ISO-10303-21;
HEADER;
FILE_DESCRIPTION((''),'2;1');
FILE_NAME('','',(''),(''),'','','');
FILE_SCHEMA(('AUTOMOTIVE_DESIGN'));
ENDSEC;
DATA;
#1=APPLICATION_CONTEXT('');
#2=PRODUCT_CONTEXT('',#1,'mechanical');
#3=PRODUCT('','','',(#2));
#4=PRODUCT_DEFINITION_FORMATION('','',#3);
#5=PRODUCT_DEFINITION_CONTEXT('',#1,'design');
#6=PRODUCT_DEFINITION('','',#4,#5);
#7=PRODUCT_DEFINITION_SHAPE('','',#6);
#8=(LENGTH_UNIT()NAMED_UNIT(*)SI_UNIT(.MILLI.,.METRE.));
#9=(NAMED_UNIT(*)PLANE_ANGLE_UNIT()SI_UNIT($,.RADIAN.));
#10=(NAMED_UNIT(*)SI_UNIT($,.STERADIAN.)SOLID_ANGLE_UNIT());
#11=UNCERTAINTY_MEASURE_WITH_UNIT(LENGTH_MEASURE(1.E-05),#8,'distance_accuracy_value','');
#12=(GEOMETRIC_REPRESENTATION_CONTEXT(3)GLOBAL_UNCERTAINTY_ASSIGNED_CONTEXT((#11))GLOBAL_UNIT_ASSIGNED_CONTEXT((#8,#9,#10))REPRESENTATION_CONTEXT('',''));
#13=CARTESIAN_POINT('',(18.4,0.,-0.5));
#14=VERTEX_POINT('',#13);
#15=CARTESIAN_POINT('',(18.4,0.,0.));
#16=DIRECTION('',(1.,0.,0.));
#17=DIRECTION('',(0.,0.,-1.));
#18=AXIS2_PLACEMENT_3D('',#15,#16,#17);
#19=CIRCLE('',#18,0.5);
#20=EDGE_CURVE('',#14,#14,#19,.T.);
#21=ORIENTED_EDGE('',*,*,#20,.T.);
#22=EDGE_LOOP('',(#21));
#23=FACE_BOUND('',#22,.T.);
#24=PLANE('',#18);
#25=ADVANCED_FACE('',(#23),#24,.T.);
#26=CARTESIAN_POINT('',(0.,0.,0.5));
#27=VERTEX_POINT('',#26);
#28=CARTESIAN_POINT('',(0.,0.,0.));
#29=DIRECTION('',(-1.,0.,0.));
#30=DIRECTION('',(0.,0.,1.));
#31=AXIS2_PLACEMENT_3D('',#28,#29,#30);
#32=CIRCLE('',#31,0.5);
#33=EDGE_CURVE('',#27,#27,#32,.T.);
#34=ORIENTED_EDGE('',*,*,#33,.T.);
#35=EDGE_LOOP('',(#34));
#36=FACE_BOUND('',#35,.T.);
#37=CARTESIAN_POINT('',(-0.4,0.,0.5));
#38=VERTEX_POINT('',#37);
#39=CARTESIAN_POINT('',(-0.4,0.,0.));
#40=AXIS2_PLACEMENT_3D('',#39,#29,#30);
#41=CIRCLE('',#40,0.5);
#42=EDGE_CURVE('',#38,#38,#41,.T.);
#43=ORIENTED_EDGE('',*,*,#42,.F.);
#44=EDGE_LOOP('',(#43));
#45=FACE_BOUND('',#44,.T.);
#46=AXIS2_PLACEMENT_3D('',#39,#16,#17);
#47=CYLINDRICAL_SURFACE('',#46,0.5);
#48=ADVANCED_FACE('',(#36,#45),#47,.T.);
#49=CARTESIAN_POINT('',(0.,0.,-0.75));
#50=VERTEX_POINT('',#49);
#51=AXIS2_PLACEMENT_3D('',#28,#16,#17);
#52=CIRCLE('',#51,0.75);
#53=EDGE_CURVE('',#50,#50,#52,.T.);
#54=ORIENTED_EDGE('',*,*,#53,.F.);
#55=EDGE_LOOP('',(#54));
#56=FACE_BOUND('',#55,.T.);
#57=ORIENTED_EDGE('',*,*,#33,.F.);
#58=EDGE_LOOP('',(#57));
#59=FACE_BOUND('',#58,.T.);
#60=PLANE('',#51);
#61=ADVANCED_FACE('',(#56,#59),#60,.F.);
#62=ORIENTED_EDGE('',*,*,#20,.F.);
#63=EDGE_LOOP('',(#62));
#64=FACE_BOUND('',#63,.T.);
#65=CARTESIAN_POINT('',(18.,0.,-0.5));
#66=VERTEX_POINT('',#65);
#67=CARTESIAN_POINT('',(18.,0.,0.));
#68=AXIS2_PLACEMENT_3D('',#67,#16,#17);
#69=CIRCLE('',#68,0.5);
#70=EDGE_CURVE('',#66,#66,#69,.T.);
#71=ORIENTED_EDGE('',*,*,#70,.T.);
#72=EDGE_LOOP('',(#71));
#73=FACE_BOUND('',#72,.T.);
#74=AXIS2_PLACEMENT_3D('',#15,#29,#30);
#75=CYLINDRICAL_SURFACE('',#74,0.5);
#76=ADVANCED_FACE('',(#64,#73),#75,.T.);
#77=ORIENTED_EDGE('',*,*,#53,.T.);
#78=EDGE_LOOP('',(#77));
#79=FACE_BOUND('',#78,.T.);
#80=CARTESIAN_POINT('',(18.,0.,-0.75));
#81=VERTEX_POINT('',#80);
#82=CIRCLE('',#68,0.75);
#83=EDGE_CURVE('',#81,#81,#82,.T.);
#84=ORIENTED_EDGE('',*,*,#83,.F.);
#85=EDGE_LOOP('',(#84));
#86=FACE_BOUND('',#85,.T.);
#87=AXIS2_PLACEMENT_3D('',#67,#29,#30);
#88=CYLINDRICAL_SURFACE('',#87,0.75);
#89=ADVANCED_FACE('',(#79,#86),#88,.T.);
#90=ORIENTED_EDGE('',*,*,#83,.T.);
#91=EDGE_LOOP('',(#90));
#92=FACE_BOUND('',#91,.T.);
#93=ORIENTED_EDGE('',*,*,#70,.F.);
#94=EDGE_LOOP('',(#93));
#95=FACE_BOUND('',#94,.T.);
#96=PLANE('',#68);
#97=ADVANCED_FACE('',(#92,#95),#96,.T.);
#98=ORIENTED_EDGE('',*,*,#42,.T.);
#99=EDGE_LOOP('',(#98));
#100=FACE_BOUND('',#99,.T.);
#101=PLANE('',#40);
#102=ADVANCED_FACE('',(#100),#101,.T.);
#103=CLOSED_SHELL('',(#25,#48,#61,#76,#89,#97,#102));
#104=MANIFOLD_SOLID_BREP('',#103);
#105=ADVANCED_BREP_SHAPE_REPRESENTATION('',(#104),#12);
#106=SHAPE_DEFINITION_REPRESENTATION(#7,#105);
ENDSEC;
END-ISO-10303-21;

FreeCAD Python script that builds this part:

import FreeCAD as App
import Part
import Sketcher

doc = App.newDocument("Part")
body = doc.addObject("PartDesign::Body", "Body")

sketch1 = body.newObject("Sketcher::SketchObject", "Sketch")
sketch1.AttachmentSupport = (doc.getObject("YZ_Plane"), [""])
sketch1.MapMode = "FlatFace"
sketch1.addGeometry(Part.Circle(App.Vector(0, 0, 0), App.Vector(0, 0, 1), 0.8), False)
sketch1.addConstraint(Sketcher.Constraint("Coincident", 0, 3, -1, 1))
sketch1.addConstraint(Sketcher.Constraint("Diameter", 0, 1.5))
pad1 = body.newObject("PartDesign::Pad", "Pad")
pad1.Profile = sketch1
pad1.Length = 18

sketch2 = body.newObject("Sketcher::SketchObject", "Sketch001")
sketch2.AttachmentSupport = (doc.getObject("YZ_Plane"), [""])
sketch2.MapMode = "FlatFace"
sketch2.AttachmentOffset = App.Placement(App.Vector(0, 0, 18), App.Rotation())
sketch2.addGeometry(Part.Circle(App.Vector(0, 0, 0), App.Vector(0, 0, 1), 0.5), False)
sketch2.addConstraint(Sketcher.Constraint("Coincident", 0, 3, -1, 1))
sketch2.addConstraint(Sketcher.Constraint("Diameter", 0, 1.0))
pad2 = body.newObject("PartDesign::Pad", "Pad001")
pad2.Profile = sketch2
pad2.Length = 0.4

sketch3 = body.newObject("Sketcher::SketchObject", "Sketch002")
sketch3.AttachmentSupport = (doc.getObject("YZ_Plane"), [""])
sketch3.MapMode = "FlatFace"
sketch3.addGeometry(Part.Circle(App.Vector(0, 0, 0), App.Vector(0, 0, 1), 0.5), False)
sketch3.addConstraint(Sketcher.Constraint("Coincident", 0, 3, -1, 1))
sketch3.addConstraint(Sketcher.Constraint("Diameter", 0, 1.0))
pad3 = body.newObject("PartDesign::Pad", "Pad002")
pad3.Profile = sketch3
pad3.Length = 0.4
pad3.Reversed = True

doc.recompute()
